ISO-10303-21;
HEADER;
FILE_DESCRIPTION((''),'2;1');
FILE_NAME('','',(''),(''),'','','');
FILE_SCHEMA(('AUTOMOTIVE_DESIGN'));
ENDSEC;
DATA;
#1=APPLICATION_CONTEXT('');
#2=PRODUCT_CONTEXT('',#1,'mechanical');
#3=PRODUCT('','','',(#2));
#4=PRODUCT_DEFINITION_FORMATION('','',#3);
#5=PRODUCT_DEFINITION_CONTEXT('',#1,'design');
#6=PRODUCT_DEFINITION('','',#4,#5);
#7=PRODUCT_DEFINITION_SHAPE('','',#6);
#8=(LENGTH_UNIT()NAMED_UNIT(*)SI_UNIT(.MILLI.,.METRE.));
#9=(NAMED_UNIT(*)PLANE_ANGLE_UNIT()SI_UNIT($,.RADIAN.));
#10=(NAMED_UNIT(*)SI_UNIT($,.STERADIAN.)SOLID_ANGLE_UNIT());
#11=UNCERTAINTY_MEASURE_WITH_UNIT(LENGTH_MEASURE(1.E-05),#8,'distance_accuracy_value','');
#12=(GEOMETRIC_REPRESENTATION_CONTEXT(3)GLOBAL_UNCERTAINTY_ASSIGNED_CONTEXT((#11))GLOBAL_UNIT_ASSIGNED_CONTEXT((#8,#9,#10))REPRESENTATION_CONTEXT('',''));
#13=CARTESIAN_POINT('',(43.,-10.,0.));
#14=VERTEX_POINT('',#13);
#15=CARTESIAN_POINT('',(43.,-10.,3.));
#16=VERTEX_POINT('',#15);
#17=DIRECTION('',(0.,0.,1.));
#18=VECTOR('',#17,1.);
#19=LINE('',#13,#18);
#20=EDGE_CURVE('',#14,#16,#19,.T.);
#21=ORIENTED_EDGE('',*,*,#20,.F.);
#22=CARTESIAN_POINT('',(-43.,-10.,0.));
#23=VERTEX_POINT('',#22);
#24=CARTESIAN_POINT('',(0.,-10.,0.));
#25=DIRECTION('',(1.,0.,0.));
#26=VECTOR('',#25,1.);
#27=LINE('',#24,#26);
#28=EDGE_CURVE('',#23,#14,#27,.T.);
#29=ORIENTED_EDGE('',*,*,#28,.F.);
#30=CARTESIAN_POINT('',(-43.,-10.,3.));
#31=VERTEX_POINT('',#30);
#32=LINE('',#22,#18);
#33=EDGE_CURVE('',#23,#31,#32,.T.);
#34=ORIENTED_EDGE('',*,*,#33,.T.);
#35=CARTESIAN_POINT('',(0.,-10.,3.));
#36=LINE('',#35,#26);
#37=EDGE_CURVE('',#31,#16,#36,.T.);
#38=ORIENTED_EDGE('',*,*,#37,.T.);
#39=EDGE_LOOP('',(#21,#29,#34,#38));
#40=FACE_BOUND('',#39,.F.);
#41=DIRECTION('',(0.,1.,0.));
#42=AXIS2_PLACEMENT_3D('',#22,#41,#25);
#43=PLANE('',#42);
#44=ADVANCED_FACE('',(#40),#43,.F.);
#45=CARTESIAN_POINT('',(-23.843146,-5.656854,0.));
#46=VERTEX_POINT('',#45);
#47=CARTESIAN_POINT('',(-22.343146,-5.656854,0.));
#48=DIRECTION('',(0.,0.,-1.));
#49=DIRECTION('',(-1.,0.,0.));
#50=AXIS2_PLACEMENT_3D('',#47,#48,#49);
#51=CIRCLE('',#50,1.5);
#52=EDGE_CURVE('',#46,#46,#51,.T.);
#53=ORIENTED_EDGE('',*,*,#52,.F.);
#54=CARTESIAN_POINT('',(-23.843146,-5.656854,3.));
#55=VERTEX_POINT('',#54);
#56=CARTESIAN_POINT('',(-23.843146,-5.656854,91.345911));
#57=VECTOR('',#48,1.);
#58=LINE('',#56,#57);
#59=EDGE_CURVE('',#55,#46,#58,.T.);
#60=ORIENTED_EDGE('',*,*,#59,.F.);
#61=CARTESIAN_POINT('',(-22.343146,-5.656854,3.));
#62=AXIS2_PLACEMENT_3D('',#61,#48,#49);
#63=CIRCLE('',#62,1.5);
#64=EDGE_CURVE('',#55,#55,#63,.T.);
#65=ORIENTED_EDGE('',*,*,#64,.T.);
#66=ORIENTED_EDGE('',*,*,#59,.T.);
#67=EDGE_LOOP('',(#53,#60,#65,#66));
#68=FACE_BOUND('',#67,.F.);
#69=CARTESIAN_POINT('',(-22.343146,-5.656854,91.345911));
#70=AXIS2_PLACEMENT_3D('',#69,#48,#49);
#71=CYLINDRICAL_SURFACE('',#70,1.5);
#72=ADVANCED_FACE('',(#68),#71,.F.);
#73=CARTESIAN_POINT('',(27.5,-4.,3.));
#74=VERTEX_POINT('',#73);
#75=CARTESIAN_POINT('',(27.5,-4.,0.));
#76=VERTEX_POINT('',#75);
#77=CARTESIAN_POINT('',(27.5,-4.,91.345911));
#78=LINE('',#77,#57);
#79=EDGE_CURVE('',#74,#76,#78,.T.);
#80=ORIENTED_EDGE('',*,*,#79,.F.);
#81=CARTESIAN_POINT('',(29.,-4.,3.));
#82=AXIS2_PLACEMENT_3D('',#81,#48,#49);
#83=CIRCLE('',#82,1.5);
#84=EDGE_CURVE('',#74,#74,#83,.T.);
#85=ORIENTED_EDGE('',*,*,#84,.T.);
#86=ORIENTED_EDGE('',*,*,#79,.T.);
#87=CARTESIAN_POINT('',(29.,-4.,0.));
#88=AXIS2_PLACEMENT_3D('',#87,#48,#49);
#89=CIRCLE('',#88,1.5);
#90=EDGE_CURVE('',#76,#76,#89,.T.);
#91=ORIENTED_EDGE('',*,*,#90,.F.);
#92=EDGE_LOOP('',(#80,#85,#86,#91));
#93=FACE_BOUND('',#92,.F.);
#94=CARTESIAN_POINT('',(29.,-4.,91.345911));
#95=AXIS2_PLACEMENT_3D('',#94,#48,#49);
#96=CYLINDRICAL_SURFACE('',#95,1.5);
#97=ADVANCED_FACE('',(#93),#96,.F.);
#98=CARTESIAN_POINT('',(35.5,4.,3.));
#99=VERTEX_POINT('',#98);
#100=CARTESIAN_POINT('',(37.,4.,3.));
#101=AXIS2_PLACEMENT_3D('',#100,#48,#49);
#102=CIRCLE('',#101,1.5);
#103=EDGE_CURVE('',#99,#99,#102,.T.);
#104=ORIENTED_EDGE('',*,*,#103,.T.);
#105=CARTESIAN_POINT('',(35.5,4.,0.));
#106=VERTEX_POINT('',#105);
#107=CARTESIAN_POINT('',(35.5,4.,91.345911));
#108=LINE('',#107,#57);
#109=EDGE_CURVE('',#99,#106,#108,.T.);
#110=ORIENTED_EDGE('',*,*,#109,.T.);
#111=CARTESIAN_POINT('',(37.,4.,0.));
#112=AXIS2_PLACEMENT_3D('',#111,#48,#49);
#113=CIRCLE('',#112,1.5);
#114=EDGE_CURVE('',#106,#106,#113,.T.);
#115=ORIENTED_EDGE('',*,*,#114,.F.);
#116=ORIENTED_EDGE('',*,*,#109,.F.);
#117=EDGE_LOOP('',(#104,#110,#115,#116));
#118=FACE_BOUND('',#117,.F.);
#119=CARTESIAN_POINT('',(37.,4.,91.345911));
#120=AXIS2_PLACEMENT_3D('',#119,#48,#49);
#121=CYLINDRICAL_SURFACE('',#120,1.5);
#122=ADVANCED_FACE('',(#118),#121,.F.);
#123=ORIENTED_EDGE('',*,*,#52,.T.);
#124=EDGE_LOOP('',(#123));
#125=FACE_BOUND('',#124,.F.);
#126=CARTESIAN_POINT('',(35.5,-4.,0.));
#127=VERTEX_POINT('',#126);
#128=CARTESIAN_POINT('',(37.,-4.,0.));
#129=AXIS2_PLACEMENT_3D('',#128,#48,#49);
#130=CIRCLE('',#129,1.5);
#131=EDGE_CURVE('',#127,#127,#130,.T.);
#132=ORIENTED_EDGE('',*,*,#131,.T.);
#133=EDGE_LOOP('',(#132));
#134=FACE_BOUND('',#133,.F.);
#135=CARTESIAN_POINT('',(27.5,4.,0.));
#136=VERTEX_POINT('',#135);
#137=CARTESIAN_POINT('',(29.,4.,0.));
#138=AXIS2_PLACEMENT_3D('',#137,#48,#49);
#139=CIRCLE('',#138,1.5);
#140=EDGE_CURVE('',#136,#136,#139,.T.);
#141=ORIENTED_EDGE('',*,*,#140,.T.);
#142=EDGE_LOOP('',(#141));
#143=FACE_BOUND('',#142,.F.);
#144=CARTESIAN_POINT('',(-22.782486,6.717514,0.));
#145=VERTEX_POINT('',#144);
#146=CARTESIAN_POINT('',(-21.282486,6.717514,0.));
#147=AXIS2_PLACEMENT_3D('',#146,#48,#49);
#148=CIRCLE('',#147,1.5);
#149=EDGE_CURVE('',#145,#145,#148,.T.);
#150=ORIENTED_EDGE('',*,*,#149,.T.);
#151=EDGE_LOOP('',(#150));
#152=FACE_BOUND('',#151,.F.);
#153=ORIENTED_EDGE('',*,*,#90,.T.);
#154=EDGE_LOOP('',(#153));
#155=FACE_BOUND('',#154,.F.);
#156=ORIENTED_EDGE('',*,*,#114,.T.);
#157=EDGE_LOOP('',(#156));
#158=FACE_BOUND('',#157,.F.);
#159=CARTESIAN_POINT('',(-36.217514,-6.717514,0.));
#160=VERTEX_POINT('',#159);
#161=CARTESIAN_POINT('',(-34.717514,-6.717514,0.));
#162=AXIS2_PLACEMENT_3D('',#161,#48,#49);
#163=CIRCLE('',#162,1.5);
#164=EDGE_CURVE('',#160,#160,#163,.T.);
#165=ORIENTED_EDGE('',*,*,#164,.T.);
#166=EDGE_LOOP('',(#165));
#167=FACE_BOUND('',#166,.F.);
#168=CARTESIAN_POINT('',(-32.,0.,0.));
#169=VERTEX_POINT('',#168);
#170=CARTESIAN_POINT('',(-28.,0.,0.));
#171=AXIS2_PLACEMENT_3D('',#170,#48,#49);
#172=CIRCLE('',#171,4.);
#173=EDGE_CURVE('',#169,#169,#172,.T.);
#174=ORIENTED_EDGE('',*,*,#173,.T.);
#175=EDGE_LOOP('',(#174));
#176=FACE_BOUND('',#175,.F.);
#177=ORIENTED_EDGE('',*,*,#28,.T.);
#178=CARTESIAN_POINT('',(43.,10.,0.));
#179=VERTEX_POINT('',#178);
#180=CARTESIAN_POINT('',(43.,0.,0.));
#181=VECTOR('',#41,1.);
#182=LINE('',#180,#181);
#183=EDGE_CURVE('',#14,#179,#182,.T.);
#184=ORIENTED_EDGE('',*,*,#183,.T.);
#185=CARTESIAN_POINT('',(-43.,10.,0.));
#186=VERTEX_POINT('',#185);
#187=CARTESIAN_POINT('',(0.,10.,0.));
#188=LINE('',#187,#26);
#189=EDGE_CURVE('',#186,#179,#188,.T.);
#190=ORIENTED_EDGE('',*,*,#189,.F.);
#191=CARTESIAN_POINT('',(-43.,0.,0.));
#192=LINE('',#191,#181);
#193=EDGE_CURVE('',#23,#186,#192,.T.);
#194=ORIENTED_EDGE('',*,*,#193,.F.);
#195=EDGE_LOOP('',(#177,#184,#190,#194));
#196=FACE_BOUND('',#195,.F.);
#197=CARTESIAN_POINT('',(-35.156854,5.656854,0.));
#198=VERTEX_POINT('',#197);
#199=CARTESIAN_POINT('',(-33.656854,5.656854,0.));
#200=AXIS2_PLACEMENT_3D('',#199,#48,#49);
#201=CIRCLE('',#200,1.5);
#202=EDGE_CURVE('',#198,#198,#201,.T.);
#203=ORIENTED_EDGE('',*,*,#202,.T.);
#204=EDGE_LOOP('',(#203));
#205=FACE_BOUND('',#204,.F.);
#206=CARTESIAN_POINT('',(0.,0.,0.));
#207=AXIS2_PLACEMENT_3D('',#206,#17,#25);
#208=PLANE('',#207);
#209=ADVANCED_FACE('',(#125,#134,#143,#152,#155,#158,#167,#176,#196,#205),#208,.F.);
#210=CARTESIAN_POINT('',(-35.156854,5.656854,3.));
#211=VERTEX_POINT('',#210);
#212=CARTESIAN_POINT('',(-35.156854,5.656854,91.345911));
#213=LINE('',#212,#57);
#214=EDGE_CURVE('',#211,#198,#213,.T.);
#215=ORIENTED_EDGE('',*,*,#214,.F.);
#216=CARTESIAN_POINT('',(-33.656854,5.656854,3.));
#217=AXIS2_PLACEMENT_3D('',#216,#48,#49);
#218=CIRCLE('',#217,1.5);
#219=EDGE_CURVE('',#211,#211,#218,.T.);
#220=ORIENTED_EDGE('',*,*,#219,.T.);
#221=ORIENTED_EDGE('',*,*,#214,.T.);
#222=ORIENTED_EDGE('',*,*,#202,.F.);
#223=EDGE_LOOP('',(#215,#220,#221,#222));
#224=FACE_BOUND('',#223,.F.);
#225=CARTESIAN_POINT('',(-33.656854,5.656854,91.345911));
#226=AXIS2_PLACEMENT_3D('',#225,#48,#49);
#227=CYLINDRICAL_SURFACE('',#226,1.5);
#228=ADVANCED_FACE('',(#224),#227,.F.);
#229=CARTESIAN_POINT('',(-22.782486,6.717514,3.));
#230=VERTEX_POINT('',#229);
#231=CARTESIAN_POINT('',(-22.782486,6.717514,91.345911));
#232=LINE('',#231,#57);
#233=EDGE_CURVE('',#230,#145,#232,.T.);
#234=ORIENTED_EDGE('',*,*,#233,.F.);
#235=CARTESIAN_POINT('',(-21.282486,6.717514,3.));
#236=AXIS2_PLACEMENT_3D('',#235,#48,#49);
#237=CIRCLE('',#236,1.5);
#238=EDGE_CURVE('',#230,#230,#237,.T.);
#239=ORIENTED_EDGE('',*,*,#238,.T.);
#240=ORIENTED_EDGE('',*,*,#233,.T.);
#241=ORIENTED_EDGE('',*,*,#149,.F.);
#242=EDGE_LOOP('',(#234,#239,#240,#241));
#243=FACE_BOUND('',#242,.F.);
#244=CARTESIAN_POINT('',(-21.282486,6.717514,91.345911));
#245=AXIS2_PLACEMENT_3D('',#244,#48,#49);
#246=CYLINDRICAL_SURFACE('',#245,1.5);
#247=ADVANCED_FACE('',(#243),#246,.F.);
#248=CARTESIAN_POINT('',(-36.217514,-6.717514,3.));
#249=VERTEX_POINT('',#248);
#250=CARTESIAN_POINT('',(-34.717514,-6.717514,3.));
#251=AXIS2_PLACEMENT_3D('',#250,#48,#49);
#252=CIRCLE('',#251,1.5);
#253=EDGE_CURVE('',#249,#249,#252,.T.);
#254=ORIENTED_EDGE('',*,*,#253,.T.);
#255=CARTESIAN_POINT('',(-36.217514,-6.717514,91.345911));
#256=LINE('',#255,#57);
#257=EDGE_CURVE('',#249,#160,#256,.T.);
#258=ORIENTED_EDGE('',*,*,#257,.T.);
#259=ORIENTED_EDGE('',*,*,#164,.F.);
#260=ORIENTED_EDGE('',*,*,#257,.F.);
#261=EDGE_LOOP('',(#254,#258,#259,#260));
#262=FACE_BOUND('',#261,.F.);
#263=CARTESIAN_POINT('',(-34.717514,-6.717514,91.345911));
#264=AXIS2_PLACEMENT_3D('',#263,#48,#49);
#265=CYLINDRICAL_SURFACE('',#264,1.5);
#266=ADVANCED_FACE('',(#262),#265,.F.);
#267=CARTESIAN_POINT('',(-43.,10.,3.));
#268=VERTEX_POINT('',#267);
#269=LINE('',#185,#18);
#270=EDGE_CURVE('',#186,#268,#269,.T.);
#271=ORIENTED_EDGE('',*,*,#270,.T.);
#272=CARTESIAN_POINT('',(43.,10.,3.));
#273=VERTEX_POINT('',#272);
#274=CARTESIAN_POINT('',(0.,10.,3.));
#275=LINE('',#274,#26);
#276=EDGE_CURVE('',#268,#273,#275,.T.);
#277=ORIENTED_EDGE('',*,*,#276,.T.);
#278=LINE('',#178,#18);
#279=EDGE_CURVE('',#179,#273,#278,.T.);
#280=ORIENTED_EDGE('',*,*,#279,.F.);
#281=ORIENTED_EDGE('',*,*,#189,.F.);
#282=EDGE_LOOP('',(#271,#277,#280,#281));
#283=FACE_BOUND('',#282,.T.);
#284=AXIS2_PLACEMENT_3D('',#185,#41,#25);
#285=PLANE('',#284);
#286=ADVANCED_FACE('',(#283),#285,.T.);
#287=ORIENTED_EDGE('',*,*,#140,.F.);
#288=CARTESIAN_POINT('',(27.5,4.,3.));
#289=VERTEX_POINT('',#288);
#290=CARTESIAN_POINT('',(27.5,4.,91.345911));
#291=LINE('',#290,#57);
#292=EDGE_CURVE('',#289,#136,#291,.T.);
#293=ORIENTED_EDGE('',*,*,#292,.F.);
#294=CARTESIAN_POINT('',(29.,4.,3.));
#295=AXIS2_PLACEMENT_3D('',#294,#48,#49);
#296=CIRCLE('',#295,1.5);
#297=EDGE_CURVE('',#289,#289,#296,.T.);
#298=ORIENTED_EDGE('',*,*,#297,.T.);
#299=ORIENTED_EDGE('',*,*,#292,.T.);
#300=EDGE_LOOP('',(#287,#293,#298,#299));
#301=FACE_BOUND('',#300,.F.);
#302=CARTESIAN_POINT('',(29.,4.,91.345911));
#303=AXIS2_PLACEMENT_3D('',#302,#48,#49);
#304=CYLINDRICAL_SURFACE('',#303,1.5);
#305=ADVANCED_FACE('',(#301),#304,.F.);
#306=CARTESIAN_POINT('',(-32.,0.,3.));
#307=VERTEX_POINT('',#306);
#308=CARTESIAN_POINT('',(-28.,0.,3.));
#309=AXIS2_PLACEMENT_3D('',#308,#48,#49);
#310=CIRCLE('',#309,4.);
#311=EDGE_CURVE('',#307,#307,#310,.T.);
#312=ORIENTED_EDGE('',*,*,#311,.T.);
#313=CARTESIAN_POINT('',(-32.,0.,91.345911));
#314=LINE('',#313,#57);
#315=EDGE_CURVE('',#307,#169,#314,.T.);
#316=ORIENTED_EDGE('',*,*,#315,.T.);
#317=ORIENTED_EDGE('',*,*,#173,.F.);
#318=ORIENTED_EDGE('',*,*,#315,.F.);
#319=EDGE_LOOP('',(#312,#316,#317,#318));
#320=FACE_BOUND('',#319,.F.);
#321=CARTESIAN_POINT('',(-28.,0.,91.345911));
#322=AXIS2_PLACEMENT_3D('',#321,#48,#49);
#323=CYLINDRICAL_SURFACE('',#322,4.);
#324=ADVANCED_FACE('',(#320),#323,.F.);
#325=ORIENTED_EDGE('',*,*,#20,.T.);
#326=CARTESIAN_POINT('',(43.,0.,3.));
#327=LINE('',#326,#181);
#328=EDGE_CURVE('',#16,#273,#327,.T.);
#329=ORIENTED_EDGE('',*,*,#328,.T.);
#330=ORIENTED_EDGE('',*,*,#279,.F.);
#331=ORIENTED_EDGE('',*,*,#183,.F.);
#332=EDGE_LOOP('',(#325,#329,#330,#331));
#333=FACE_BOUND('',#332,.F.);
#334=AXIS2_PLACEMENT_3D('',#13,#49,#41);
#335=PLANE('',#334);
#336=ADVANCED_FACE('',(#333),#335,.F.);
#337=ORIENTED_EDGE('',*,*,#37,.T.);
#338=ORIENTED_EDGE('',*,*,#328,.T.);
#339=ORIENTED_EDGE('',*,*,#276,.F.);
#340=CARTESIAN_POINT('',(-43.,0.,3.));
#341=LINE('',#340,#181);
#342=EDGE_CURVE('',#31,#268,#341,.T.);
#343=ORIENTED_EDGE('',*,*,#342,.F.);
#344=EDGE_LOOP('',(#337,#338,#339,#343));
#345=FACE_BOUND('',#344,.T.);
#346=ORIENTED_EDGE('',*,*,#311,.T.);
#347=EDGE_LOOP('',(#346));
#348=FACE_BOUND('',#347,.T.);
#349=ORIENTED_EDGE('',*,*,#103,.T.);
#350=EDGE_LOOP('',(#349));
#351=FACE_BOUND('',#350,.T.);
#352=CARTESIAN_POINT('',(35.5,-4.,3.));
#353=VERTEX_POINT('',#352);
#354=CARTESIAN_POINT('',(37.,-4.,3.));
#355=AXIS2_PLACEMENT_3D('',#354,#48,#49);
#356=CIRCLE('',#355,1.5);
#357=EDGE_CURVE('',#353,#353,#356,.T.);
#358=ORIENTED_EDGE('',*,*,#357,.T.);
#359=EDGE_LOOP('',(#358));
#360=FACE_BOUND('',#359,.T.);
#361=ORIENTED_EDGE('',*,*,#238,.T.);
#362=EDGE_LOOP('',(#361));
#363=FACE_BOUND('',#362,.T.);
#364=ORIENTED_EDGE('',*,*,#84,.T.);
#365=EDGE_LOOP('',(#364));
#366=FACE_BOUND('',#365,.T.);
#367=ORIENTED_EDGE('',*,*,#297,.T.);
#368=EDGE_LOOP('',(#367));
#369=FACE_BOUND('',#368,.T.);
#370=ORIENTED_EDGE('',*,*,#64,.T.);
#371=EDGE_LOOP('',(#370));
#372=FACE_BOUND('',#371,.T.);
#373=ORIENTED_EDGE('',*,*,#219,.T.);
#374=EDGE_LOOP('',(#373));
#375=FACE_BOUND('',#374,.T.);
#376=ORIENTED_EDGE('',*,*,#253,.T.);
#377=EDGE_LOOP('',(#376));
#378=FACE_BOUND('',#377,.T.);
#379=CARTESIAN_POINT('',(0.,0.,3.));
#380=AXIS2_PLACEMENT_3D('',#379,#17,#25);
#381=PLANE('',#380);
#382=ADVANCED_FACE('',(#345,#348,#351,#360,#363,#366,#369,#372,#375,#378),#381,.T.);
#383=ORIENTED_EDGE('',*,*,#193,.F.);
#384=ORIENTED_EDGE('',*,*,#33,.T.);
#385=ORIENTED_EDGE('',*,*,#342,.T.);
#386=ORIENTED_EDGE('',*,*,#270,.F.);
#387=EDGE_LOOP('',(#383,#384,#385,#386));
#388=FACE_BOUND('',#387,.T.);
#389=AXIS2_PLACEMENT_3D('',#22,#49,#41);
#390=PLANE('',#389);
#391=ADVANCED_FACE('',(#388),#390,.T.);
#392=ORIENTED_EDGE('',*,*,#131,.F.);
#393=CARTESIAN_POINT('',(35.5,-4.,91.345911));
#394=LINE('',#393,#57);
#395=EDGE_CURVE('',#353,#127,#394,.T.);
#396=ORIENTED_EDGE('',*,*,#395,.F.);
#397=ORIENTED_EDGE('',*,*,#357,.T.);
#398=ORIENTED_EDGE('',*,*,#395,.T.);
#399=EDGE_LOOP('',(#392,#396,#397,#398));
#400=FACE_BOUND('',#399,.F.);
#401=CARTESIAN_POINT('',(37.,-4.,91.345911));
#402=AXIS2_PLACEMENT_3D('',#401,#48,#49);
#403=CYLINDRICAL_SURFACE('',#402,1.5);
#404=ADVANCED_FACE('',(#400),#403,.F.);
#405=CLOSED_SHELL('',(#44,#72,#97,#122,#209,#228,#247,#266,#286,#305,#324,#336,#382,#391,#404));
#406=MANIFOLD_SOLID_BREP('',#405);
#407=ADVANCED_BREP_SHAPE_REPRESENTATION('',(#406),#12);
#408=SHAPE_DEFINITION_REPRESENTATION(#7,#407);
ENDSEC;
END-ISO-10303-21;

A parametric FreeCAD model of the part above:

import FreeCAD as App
import Part
import Sketcher
from FreeCAD import Vector
Q = App.Units.Quantity

doc = App.newDocument("Part")
body = doc.addObject("PartDesign::Body", "Body")

# Sketch on XY plane
sketch1 = doc.addObject("Sketcher::SketchObject", "Sketch")
body.addObject(sketch1)
sketch1.AttachmentSupport = (doc.XY_Plane, [""])
sketch1.MapMode = "FlatFace"
sketch1.addGeometry(Part.LineSegment(Vector(-43, 10, 0), Vector(-43, -10, 0)), False)
sketch1.addGeometry(Part.LineSegment(Vector(-43, -10, 0), Vector(43, -10, 0)), False)
sketch1.addGeometry(Part.LineSegment(Vector(43, -10, 0), Vector(43, 10, 0)), False)
sketch1.addGeometry(Part.LineSegment(Vector(43, 10, 0), Vector(-43, 10, 0)), False)
sketch1.addConstraint(Sketcher.Constraint("Coincident", 0, 2, 1, 1))
sketch1.addConstraint(Sketcher.Constraint("Coincident", 1, 2, 2, 1))
sketch1.addConstraint(Sketcher.Constraint("Coincident", 2, 2, 3, 1))
sketch1.addConstraint(Sketcher.Constraint("Coincident", 3, 2, 0, 1))
sketch1.addConstraint(Sketcher.Constraint("Vertical", 0))
sketch1.addConstraint(Sketcher.Constraint("Horizontal", 1))
sketch1.addConstraint(Sketcher.Constraint("Vertical", 2))
sketch1.addConstraint(Sketcher.Constraint("Horizontal", 3))
sketch1.addConstraint(Sketcher.Constraint("Symmetric", 0, 2, 2, 2, -1, 1))
sketch1.addConstraint(Sketcher.Constraint("DistanceX", 1, 1, 1, 2, Q("86 mm")))
sketch1.addConstraint(Sketcher.Constraint("DistanceY", 0, 2, 0, 1, Q("20 mm")))
pad1 = doc.addObject("PartDesign::Pad", "Pad")
body.addObject(pad1)
pad1.Profile = sketch1
pad1.Length = 3

# Sketch on XY plane
sketch2 = doc.addObject("Sketcher::SketchObject", "Sketch001")
body.addObject(sketch2)
sketch2.AttachmentSupport = (doc.XY_Plane, [""])
sketch2.MapMode = "FlatFace"
sketch2.AttachmentOffset = App.Placement(Vector(0, 0, 3), App.Rotation())
sketch2.addGeometry(Part.Circle(Vector(37, 4, 0), Vector(0, 0, 1), 1.5), False)
sketch2.addGeometry(Part.Circle(Vector(37, -4, 0), Vector(0, 0, 1), 1.5), False)
sketch2.addGeometry(Part.Circle(Vector(29, -4, 0), Vector(0, 0, 1), 1.5), False)
sketch2.addGeometry(Part.Circle(Vector(29, 4, 0), Vector(0, 0, 1), 1.5), False)
sketch2.addConstraint(Sketcher.Constraint("Equal", 0, 1))
sketch2.addConstraint(Sketcher.Constraint("Equal", 1, 2))
sketch2.addConstraint(Sketcher.Constraint("Equal", 2, 3))
sketch2.addConstraint(Sketcher.Constraint("Symmetric", 0, 3, 1, 3, -1))
sketch2.addConstraint(Sketcher.Constraint("Symmetric", 2, 3, 3, 3, -1))
sketch2.addConstraint(Sketcher.Constraint("Horizontal", 1, 3, 2, 3))
sketch2.addConstraint(Sketcher.Constraint("Diameter", 0, Q("3 mm")))
sketch2.addConstraint(Sketcher.Constraint("DistanceX", -1, 1, 0, 3, Q("37 mm")))
sketch2.addConstraint(Sketcher.Constraint("DistanceY", -1, 1, 0, 3, Q("4 mm")))
sketch2.addConstraint(Sketcher.Constraint("DistanceX", -1, 1, 2, 3, Q("29 mm")))
doc.recompute()
hole = doc.addObject("PartDesign::Hole", "Hole")
body.addObject(hole)
hole.Profile = sketch2
hole.ThreadType = "None"
hole.Diameter = 3
hole.DepthType = "ThroughAll"

# Sketch on XY plane
sketch3 = doc.addObject("Sketcher::SketchObject", "Sketch002")
body.addObject(sketch3)
sketch3.AttachmentSupport = (doc.XY_Plane, [""])
sketch3.MapMode = "FlatFace"
sketch3.AttachmentOffset = App.Placement(Vector(0, 0, 3), App.Rotation())
sketch3.addGeometry(Part.Circle(Vector(-28, 0, 0), Vector(0, 0, 1), 4), False)
sketch3.addConstraint(Sketcher.Constraint("PointOnObject", 0, 3, -1))
sketch3.addConstraint(Sketcher.Constraint("Diameter", 0, Q("8 mm")))
sketch3.addConstraint(Sketcher.Constraint("DistanceX", 0, 3, -1, 1, Q("28 mm")))
doc.recompute()
hole2 = doc.addObject("PartDesign::Hole", "Hole001")
body.addObject(hole2)
hole2.Profile = sketch3
hole2.ThreadType = "None"
hole2.Diameter = 8
hole2.DepthType = "ThroughAll"

# Sketch on XY plane
sketch4 = doc.addObject("Sketcher::SketchObject", "Sketch003")
body.addObject(sketch4)
sketch4.AttachmentSupport = (doc.XY_Plane, [""])
sketch4.MapMode = "FlatFace"
sketch4.AttachmentOffset = App.Placement(Vector(0, 0, 3), App.Rotation())
sketch4.addGeometry(Part.Circle(Vector(-34.7, -6.7, 0), Vector(0, 0, 1), 1.5), False)
sketch4.addGeometry(Part.Circle(Vector(-33.7, 5.7, 0), Vector(0, 0, 1), 1.5), False)
sketch4.addGeometry(Part.Circle(Vector(-21.3, 6.7, 0), Vector(0, 0, 1), 1.5), False)
sketch4.addGeometry(Part.Circle(Vector(-22.3, -5.7, 0), Vector(0, 0, 1), 1.5), False)
sketch4.addConstraint(Sketcher.Constraint("Equal", 0, 1))
sketch4.addConstraint(Sketcher.Constraint("Equal", 1, 2))
sketch4.addConstraint(Sketcher.Constraint("Equal", 2, 3))
sketch4.addConstraint(Sketcher.Constraint("Diameter", 0, Q("3 mm")))
sketch4.addConstraint(Sketcher.Constraint("DistanceX", 0, 3, 1, 3, Q("1.06066 mm")))
sketch4.addConstraint(Sketcher.Constraint("DistanceX", 1, 3, 2, 3, Q("12.374368 mm")))
sketch4.addConstraint(Sketcher.Constraint("DistanceY", 1, 3, 2, 3, Q("1.06066 mm")))
sketch4.addConstraint(Sketcher.Constraint("DistanceY", 0, 3, 2, 3, Q("13.435028 mm")))
sketch4.addConstraint(Sketcher.Constraint("DistanceY", 0, 3, 3, 3, Q("1.06066 mm")))
sketch4.addConstraint(Sketcher.Constraint("DistanceX", 3, 3, 2, 3, Q("1.06066 mm")))
sketch4.addConstraint(Sketcher.Constraint("DistanceX", 0, 3, -1, 1, Q("34.717514 mm")))
sketch4.addConstraint(Sketcher.Constraint("DistanceY", 0, 3, -1, 1, Q("6.717514 mm")))
doc.recompute()
hole3 = doc.addObject("PartDesign::Hole", "Hole002")
body.addObject(hole3)
hole3.Profile = sketch4
hole3.ThreadType = "None"
hole3.Diameter = 3
hole3.DepthType = "ThroughAll"

doc.recompute()
